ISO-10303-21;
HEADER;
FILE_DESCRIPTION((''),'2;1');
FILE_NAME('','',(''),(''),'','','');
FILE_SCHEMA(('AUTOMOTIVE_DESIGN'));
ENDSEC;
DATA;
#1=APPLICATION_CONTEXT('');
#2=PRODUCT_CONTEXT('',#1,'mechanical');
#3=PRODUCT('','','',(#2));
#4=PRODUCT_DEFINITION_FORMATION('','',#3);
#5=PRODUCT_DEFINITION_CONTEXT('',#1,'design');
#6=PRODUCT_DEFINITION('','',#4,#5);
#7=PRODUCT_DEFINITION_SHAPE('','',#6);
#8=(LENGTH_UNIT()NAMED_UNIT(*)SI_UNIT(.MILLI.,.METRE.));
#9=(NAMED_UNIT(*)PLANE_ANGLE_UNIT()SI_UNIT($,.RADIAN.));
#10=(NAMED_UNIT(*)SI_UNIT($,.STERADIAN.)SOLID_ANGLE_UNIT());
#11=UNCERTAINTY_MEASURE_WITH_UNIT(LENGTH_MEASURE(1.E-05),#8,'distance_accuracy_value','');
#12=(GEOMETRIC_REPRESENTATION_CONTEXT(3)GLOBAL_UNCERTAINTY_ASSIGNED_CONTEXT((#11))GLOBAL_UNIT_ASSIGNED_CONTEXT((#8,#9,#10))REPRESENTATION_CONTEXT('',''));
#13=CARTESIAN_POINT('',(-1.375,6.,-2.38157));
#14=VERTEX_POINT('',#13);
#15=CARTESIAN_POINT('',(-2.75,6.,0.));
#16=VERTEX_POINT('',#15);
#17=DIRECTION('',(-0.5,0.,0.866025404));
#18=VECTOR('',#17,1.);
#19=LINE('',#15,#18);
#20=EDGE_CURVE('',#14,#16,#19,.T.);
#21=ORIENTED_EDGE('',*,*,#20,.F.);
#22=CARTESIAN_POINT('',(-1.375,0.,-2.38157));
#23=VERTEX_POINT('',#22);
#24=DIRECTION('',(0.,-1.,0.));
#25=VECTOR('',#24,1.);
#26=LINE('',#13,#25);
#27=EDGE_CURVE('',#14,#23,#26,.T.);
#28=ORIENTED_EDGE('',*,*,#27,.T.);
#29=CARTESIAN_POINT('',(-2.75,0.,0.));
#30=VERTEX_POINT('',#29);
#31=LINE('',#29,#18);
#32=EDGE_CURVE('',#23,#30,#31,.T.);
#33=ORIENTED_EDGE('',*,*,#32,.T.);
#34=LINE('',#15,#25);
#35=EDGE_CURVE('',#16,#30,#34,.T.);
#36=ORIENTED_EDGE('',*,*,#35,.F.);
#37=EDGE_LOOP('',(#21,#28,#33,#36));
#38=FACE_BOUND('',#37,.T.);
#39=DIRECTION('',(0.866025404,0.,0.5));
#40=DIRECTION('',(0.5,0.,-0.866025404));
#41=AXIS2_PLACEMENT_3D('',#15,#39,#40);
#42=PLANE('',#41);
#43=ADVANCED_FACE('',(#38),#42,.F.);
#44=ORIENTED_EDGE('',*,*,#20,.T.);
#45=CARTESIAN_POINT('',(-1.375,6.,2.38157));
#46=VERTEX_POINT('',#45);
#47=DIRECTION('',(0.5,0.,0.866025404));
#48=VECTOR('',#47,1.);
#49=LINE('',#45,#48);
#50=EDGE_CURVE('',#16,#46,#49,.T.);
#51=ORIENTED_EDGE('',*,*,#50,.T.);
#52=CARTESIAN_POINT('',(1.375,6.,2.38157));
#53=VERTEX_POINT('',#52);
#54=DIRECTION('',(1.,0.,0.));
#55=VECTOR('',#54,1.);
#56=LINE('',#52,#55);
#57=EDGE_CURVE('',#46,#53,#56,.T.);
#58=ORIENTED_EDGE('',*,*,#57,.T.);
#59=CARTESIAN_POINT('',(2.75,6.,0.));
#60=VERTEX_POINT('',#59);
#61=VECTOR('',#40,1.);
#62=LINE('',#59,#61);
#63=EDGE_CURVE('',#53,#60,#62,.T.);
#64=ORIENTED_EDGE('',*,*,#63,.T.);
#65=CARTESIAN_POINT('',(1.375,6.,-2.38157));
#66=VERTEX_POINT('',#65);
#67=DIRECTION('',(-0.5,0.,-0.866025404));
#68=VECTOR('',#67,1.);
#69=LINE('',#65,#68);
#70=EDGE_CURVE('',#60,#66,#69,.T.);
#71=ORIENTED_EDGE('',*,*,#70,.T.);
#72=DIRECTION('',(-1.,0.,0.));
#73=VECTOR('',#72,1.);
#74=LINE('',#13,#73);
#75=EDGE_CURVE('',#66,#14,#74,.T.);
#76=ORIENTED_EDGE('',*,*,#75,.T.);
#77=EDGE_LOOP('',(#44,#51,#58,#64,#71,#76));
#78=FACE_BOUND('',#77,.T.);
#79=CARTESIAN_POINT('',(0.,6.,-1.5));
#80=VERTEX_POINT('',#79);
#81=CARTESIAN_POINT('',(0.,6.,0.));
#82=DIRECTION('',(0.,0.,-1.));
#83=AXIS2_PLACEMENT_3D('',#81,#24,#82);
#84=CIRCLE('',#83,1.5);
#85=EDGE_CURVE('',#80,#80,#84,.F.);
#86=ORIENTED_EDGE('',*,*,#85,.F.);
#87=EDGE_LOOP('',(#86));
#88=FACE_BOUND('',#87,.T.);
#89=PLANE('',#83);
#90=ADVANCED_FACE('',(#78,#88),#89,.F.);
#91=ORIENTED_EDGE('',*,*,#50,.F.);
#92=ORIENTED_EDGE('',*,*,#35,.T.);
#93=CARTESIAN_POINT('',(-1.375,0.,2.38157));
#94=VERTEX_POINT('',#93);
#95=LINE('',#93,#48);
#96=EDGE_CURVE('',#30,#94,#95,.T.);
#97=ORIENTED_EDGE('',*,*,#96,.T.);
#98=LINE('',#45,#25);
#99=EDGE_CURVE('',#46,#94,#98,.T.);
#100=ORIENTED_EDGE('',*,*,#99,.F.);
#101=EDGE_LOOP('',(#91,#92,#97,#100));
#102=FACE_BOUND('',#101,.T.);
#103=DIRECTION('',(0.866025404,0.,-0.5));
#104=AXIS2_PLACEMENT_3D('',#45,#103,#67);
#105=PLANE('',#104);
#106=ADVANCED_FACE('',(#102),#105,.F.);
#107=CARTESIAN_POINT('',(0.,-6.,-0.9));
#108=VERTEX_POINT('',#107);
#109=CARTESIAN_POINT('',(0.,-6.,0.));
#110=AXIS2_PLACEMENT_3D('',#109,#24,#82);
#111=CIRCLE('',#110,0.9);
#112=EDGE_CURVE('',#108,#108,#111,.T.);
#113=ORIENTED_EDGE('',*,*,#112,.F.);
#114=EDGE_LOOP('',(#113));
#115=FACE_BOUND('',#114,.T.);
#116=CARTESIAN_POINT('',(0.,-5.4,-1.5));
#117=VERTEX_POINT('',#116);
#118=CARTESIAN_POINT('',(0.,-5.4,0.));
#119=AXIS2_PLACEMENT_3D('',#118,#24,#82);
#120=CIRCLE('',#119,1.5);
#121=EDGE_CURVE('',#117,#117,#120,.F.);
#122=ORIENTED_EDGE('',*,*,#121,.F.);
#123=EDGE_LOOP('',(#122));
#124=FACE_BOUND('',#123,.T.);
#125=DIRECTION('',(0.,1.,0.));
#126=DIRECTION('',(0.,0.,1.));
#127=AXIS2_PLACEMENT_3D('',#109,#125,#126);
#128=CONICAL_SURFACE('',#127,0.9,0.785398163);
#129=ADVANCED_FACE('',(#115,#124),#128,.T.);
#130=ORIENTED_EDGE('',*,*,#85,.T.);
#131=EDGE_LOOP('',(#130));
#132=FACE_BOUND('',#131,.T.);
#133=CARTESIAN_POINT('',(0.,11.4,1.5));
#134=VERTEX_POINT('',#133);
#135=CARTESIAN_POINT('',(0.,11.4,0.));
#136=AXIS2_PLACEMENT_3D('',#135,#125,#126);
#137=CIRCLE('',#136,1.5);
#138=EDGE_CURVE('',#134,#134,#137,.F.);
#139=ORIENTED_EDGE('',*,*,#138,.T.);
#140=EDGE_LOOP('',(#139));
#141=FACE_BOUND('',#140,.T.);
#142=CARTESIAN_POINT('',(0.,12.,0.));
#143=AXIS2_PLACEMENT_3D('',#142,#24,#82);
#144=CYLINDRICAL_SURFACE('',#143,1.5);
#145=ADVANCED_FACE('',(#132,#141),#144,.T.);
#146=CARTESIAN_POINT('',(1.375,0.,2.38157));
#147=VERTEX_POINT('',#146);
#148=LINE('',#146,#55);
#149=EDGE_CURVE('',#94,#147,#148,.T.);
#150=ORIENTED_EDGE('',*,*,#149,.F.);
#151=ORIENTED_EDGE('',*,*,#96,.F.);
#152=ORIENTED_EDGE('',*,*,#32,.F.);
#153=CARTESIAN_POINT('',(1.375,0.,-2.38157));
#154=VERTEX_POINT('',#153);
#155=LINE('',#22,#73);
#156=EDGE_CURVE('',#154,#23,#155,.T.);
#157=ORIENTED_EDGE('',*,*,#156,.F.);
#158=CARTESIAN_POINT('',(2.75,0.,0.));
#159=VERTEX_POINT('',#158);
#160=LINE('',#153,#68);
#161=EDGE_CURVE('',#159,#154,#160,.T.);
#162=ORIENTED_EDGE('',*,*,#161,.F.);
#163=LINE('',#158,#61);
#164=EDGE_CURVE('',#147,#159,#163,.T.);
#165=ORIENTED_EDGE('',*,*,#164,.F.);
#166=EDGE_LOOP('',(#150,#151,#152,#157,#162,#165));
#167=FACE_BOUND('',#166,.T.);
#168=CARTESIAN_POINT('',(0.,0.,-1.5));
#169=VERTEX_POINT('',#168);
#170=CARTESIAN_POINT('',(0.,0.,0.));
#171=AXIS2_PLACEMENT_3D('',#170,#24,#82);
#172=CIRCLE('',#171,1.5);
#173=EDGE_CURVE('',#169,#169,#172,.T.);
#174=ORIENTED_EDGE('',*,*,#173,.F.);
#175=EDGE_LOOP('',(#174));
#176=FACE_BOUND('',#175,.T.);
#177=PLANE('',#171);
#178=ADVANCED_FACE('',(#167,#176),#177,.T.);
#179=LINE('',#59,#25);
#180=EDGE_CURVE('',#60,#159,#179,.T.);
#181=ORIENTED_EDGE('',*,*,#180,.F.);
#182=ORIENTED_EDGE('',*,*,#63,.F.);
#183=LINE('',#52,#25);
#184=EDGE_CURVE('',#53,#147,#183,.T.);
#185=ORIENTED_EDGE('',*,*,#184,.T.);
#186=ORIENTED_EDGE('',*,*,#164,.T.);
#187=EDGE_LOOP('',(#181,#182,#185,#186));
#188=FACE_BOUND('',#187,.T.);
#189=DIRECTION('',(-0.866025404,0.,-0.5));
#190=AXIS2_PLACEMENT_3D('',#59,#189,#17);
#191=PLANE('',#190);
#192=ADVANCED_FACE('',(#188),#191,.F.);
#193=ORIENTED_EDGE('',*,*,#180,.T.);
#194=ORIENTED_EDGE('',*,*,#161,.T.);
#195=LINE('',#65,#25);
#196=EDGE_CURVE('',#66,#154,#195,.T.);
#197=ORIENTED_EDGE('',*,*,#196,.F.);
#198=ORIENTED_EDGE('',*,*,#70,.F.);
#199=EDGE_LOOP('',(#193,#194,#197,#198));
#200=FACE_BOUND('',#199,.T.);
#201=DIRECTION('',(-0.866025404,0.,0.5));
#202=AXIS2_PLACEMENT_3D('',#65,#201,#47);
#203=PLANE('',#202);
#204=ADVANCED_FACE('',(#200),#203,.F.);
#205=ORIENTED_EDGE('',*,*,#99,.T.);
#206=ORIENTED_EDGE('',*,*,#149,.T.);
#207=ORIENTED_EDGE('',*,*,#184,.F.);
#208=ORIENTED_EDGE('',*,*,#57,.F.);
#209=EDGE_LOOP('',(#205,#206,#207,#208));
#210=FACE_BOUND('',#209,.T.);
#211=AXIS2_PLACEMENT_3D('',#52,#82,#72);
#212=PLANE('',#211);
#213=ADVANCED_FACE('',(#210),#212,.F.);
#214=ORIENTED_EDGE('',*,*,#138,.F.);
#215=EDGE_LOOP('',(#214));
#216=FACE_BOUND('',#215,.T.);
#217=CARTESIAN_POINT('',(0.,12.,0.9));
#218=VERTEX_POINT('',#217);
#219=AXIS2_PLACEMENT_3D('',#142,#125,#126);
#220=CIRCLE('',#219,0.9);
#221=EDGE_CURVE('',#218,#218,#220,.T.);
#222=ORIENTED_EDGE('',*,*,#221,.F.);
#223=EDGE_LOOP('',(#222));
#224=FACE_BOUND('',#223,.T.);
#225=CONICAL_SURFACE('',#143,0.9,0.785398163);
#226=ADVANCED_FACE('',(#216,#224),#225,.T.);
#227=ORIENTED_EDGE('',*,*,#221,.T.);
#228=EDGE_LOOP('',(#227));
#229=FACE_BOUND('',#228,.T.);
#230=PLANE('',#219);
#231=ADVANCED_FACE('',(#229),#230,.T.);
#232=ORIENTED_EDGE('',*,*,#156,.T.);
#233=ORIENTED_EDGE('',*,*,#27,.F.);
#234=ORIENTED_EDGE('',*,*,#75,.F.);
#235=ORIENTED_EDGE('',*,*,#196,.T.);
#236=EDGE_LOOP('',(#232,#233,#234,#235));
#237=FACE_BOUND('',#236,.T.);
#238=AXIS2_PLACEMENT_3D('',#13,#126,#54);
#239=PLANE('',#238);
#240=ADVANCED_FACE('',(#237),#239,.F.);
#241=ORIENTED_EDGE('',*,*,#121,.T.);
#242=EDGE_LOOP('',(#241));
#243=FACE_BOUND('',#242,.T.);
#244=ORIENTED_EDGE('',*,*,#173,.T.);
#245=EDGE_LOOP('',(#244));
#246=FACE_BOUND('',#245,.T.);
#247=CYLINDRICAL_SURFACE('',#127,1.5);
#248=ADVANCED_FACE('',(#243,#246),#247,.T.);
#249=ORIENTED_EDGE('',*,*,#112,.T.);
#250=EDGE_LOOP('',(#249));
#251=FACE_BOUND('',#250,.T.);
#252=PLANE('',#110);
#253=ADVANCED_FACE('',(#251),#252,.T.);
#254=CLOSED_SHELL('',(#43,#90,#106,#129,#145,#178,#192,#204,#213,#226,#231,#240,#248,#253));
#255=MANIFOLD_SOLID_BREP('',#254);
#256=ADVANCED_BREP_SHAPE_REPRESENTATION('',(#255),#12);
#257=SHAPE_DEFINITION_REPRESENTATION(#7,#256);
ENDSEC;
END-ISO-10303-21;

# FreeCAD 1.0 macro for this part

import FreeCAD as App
import Part
import Sketcher
from FreeCAD import Vector
Q = App.Units.Quantity


def edges_at(feature, points):
    """Names of the edges that pass closest to the given points."""
    edges = feature.Shape.Edges
    near = lambda p: min(range(len(edges)), key=lambda i: edges[i].distToShape(Part.Vertex(*p))[0])
    return sorted({f"Edge{near(p) + 1}" for p in points})

doc = App.newDocument("Part")
params = doc.addObject("Spreadsheet::Sheet", "Params")
for row, (alias, value) in enumerate([
    ("sketch1_width", "2.75 mm"),
    ("pad1_length", "6 mm"),
    ("sketch2_diameter", "3 mm"),
    ("pad2_length", "6 mm"),
    ("sketch3_diameter", "3 mm"),
    ("pad3_length", "6 mm"),
    ("chamfer_size", "0.6 mm"),
], start=1):
    params.set(f"A{row}", alias)
    params.set(f"B{row}", "=" + value)
    params.setAlias(f"B{row}", alias)

body = doc.addObject("PartDesign::Body", "Body")

sketch1 = body.newObject("Sketcher::SketchObject", "Sketch")
sketch1.AttachmentSupport = (doc.getObject("XZ_Plane"), [""])
sketch1.MapMode = "FlatFace"
sketch1.addGeometry([
    Part.LineSegment(Vector(-1.375, -2.38157, 0), Vector(-2.75, 0, 0)),
    Part.LineSegment(Vector(-2.75, 0, 0), Vector(-1.375, 2.38157, 0)),
    Part.LineSegment(Vector(-1.375, 2.38157, 0), Vector(1.375, 2.38157, 0)),
    Part.LineSegment(Vector(1.375, 2.38157, 0), Vector(2.75, 0, 0)),
    Part.LineSegment(Vector(2.75, 0, 0), Vector(1.375, -2.38157, 0)),
    Part.LineSegment(Vector(1.375, -2.38157, 0), Vector(-1.375, -2.38157, 0)),
], False)
sketch1.addConstraint([
    Sketcher.Constraint("Coincident", 0, 2, 1, 1),
    Sketcher.Constraint("Coincident", 1, 2, 2, 1),
    Sketcher.Constraint("Coincident", 2, 2, 3, 1),
    Sketcher.Constraint("Coincident", 3, 2, 4, 1),
    Sketcher.Constraint("Coincident", 4, 2, 5, 1),
    Sketcher.Constraint("Coincident", 5, 2, 0, 1),
    Sketcher.Constraint("Horizontal", 2),
    Sketcher.Constraint("Horizontal", 5),
    Sketcher.Constraint("Symmetric", 0, 2, 3, 2, -1, 1),
    Sketcher.Constraint("Symmetric", 1, 2, 4, 2, -1, 1),
    Sketcher.Constraint("PointOnObject", 0, 2, -1),
    Sketcher.Constraint("Parallel", 0, 3),
    Sketcher.Constraint("Vertical", 2, 2, 4, 2),
    Sketcher.Constraint("Angle", 0, Q("120 deg")),
    Sketcher.Constraint("DistanceX", 2, 1, 2, 2, 2.75),
    Sketcher.Constraint("DistanceX", 0, 2, 3, 2, 5.5),
])
sketch1.setExpression("Constraints[14]", "Params.sketch1_width")
pad1 = body.newObject("PartDesign::Pad", "Pad")
pad1.Profile = sketch1
pad1.setExpression("Length", "Params.pad1_length")
pad1.Reversed = True

sketch2 = body.newObject("Sketcher::SketchObject", "Sketch001")
sketch2.AttachmentSupport = (doc.getObject("XZ_Plane"), [""])
sketch2.MapMode = "FlatFace"
sketch2.AttachmentOffset = App.Placement(Vector(0, 0, -6), App.Rotation())
sketch2.addGeometry(Part.Circle(Vector(0, 0, 0), Vector(0, 0, 1), 1.5), False)
sketch2.addConstraint([
    Sketcher.Constraint("Coincident", 0, 3, -1, 1),
    Sketcher.Constraint("Diameter", 0, 3.0),
])
sketch2.setExpression("Constraints[1]", "Params.sketch2_diameter")
pad2 = body.newObject("PartDesign::Pad", "Pad001")
pad2.Profile = sketch2
pad2.setExpression("Length", "Params.pad2_length")
pad2.Reversed = True

sketch3 = body.newObject("Sketcher::SketchObject", "Sketch002")
sketch3.AttachmentSupport = (doc.getObject("XZ_Plane"), [""])
sketch3.MapMode = "FlatFace"
sketch3.AttachmentOffset = App.Placement(Vector(0, 0, 6), App.Rotation())
sketch3.addGeometry(Part.Circle(Vector(0, 0, 0), Vector(0, 0, 1), 1.5), False)
sketch3.addConstraint([
    Sketcher.Constraint("Coincident", 0, 3, -1, 1),
    Sketcher.Constraint("Diameter", 0, 3.0),
])
sketch3.setExpression("Constraints[1]", "Params.sketch3_diameter")
pad3 = body.newObject("PartDesign::Pad", "Pad002")
pad3.Profile = sketch3
pad3.setExpression("Length", "Params.pad3_length")
pad3.Reversed = True
doc.recompute()

chamfer = body.newObject("PartDesign::Chamfer", "Chamfer")
chamfer.Base = (pad3, edges_at(pad3, [(0, 12, 1.5), (0, -6, 1.5)]))
chamfer.setExpression("Size", "Params.chamfer_size")

doc.recompute()
